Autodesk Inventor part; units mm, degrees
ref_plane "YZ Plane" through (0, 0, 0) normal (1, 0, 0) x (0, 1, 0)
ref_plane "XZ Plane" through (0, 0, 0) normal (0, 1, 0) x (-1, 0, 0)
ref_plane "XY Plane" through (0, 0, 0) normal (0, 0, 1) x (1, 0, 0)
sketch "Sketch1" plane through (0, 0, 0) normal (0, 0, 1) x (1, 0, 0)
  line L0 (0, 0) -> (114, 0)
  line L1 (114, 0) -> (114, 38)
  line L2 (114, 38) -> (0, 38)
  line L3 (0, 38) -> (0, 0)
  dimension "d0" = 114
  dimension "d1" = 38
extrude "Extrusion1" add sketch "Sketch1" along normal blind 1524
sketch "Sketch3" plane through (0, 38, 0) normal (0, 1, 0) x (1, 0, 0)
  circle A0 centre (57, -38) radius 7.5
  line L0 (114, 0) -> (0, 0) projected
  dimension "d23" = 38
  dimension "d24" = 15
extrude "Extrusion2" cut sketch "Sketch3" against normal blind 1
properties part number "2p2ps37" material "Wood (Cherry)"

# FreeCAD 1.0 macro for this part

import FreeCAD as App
import Part
import Sketcher

V = App.Vector
Q = App.Units.Quantity

doc = App.newDocument("Part")
body = doc.addObject("PartDesign::Body", "Body")

# Sketch on XY plane
sketch1 = doc.addObject("Sketcher::SketchObject", "Sketch")
body.addObject(sketch1)
sketch1.AttachmentSupport = (doc.XY_Plane, [""])
sketch1.MapMode = "FlatFace"
sketch1.addGeometry([
    Part.LineSegment(V(0, 38, 0), V(0, 0, 0)),
    Part.LineSegment(V(0, 0, 0), V(114, 0, 0)),
    Part.LineSegment(V(114, 0, 0), V(114, 38, 0)),
    Part.LineSegment(V(114, 38, 0), V(0, 38, 0)),
], False)
sketch1.addConstraint([
    Sketcher.Constraint("Coincident", 0, 2, 1, 1),
    Sketcher.Constraint("Coincident", 1, 2, 2, 1),
    Sketcher.Constraint("Coincident", 2, 2, 3, 1),
    Sketcher.Constraint("Coincident", 3, 2, 0, 1),
    Sketcher.Constraint("Vertical", 0),
    Sketcher.Constraint("Horizontal", 1),
    Sketcher.Constraint("Vertical", 2),
    Sketcher.Constraint("Horizontal", 3),
    Sketcher.Constraint("Coincident", 0, 2, -1, 1),
    Sketcher.Constraint("DistanceX", 1, 1, 1, 2, Q("114 mm")),
    Sketcher.Constraint("DistanceY", 0, 2, 0, 1, Q("38 mm")),
])
pad1 = doc.addObject("PartDesign::Pad", "Pad")
body.addObject(pad1)
pad1.Profile = sketch1
pad1.Length = 1524

# Sketch on XZ plane
sketch2 = doc.addObject("Sketcher::SketchObject", "Sketch001")
body.addObject(sketch2)
sketch2.AttachmentSupport = (doc.XZ_Plane, [""])
sketch2.MapMode = "FlatFace"
sketch2.AttachmentOffset = App.Placement(V(0, 0, -38), App.Rotation())
sketch2.addGeometry(Part.Circle(V(57, 38, 0), V(0, 0, 1), 8), False)
sketch2.addConstraint([
    Sketcher.Constraint("Diameter", 0, Q("15 mm")),
    Sketcher.Constraint("DistanceY", -1, 1, 0, 3, Q("38 mm")),
    Sketcher.Constraint("DistanceX", -1, 1, 0, 3, Q("57 mm")),
])
pocket1 = doc.addObject("PartDesign::Pocket", "Pocket")
body.addObject(pocket1)
pocket1.Profile = sketch2
pocket1.Length = 1
pocket1.Reversed = True

doc.recompute()
